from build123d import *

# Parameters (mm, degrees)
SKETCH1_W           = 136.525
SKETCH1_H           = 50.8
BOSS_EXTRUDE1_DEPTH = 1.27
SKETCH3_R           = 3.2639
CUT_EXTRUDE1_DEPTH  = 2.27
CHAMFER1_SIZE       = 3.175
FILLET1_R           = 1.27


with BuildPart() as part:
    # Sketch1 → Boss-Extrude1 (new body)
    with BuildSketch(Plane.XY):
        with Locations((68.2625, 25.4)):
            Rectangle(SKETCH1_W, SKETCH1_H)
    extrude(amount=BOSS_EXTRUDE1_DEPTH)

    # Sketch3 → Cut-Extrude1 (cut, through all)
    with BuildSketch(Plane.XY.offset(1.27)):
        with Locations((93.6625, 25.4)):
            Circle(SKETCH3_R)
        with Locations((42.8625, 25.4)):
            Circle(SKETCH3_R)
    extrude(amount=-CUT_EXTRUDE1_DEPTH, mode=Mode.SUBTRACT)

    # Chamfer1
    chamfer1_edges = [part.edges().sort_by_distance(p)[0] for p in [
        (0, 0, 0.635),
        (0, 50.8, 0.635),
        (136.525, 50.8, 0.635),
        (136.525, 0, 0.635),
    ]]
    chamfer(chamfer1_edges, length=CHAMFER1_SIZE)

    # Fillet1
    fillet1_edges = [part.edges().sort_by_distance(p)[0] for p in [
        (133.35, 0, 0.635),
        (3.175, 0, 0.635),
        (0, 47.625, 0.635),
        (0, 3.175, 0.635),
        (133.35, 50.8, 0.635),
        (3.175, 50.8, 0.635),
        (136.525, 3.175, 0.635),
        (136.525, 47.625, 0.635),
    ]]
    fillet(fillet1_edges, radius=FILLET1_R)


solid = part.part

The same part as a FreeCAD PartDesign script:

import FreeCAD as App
import Part
import Sketcher
from FreeCAD import Vector
Q = App.Units.Quantity


def edges_at(feature, points):
    """Names of the edges that pass closest to the given points."""
    edges = feature.Shape.Edges
    near = lambda p: min(range(len(edges)), key=lambda i: edges[i].distToShape(Part.Vertex(*p))[0])
    return sorted({f"Edge{near(p) + 1}" for p in points})

doc = App.newDocument("Part")
body = doc.addObject("PartDesign::Body", "Body")

sketch1 = body.newObject("Sketcher::SketchObject", "Sketch")
sketch1.AttachmentSupport = (doc.getObject("XY_Plane"), [""])
sketch1.MapMode = "FlatFace"
sketch1.addGeometry(Part.LineSegment(Vector(0, 51, 0), Vector(0, 0, 0)), False)
sketch1.addGeometry(Part.LineSegment(Vector(0, 0, 0), Vector(137, 0, 0)), False)
sketch1.addGeometry(Part.LineSegment(Vector(137, 0, 0), Vector(137, 51, 0)), False)
sketch1.addGeometry(Part.LineSegment(Vector(137, 51, 0), Vector(0, 51, 0)), False)
sketch1.addConstraint(Sketcher.Constraint("Coincident", 0, 2, 1, 1))
sketch1.addConstraint(Sketcher.Constraint("Coincident", 1, 2, 2, 1))
sketch1.addConstraint(Sketcher.Constraint("Coincident", 2, 2, 3, 1))
sketch1.addConstraint(Sketcher.Constraint("Coincident", 3, 2, 0, 1))
sketch1.addConstraint(Sketcher.Constraint("Vertical", 0))
sketch1.addConstraint(Sketcher.Constraint("Horizontal", 1))
sketch1.addConstraint(Sketcher.Constraint("Vertical", 2))
sketch1.addConstraint(Sketcher.Constraint("Horizontal", 3))
sketch1.addConstraint(Sketcher.Constraint("Coincident", 0, 2, -1, 1))
sketch1.addConstraint(Sketcher.Constraint("DistanceY", 0, 2, 0, 1, Q("2 in")))
sketch1.addConstraint(Sketcher.Constraint("DistanceX", 1, 1, 1, 2, Q("5.375 in")))
pad1 = body.newObject("PartDesign::Pad", "Pad")
pad1.Profile = sketch1
pad1.Length = Q("0.05 in")

sketch2 = body.newObject("Sketcher::SketchObject", "Sketch001")
sketch2.AttachmentSupport = (doc.getObject("XY_Plane"), [""])
sketch2.MapMode = "FlatFace"
sketch2.AttachmentOffset = App.Placement(Vector(0, 0, 0.05 * 25.4), App.Rotation())
sketch2.addGeometry(Part.Circle(Vector(93.7, 25.4, 0), Vector(0, 0, 1), 3.3), False)
sketch2.addGeometry(Part.Circle(Vector(42.9, 25.4, 0), Vector(0, 0, 1), 3.3), False)
sketch2.addConstraint(Sketcher.Constraint("Equal", 0, 1))
sketch2.addConstraint(Sketcher.Constraint("Horizontal", 0, 3, 1, 3))
sketch2.addConstraint(Sketcher.Constraint("Diameter", 0, Q("0.257 in")))
sketch2.addConstraint(Sketcher.Constraint("DistanceY", -1, 1, 0, 3, Q("1 in")))
sketch2.addConstraint(Sketcher.Constraint("DistanceX", 1, 3, 0, 3, Q("2 in")))
sketch2.addConstraint(Sketcher.Constraint("DistanceX", -1, 1, 0, 3, Q("3.6875 in")))
pocket1 = body.newObject("PartDesign::Pocket", "Pocket")
pocket1.Profile = sketch2
pocket1.Type = "ThroughAll"
doc.recompute()

chamfer = body.newObject("PartDesign::Chamfer", "Chamfer")
chamfer.Base = (pocket1, edges_at(pocket1, [
    (0, 0, 0.635),
    (0, 50.8, 0.635),
    (136.525, 50.8, 0.635),
    (136.525, 0, 0.635),
]))
chamfer.Size = Q("0.125 in")
doc.recompute()

fillet = body.newObject("PartDesign::Fillet", "Fillet")
fillet.Base = (chamfer, edges_at(chamfer, [
    (133.35, 0, 0.635),
    (3.175, 0, 0.635),
    (0, 47.625, 0.635),
    (0, 3.175, 0.635),
    (133.35, 50.8, 0.635),
    (3.175, 50.8, 0.635),
    (136.525, 3.175, 0.635),
    (136.525, 47.625, 0.635),
]))
fillet.Radius = Q("0.05 in")

doc.recompute()
